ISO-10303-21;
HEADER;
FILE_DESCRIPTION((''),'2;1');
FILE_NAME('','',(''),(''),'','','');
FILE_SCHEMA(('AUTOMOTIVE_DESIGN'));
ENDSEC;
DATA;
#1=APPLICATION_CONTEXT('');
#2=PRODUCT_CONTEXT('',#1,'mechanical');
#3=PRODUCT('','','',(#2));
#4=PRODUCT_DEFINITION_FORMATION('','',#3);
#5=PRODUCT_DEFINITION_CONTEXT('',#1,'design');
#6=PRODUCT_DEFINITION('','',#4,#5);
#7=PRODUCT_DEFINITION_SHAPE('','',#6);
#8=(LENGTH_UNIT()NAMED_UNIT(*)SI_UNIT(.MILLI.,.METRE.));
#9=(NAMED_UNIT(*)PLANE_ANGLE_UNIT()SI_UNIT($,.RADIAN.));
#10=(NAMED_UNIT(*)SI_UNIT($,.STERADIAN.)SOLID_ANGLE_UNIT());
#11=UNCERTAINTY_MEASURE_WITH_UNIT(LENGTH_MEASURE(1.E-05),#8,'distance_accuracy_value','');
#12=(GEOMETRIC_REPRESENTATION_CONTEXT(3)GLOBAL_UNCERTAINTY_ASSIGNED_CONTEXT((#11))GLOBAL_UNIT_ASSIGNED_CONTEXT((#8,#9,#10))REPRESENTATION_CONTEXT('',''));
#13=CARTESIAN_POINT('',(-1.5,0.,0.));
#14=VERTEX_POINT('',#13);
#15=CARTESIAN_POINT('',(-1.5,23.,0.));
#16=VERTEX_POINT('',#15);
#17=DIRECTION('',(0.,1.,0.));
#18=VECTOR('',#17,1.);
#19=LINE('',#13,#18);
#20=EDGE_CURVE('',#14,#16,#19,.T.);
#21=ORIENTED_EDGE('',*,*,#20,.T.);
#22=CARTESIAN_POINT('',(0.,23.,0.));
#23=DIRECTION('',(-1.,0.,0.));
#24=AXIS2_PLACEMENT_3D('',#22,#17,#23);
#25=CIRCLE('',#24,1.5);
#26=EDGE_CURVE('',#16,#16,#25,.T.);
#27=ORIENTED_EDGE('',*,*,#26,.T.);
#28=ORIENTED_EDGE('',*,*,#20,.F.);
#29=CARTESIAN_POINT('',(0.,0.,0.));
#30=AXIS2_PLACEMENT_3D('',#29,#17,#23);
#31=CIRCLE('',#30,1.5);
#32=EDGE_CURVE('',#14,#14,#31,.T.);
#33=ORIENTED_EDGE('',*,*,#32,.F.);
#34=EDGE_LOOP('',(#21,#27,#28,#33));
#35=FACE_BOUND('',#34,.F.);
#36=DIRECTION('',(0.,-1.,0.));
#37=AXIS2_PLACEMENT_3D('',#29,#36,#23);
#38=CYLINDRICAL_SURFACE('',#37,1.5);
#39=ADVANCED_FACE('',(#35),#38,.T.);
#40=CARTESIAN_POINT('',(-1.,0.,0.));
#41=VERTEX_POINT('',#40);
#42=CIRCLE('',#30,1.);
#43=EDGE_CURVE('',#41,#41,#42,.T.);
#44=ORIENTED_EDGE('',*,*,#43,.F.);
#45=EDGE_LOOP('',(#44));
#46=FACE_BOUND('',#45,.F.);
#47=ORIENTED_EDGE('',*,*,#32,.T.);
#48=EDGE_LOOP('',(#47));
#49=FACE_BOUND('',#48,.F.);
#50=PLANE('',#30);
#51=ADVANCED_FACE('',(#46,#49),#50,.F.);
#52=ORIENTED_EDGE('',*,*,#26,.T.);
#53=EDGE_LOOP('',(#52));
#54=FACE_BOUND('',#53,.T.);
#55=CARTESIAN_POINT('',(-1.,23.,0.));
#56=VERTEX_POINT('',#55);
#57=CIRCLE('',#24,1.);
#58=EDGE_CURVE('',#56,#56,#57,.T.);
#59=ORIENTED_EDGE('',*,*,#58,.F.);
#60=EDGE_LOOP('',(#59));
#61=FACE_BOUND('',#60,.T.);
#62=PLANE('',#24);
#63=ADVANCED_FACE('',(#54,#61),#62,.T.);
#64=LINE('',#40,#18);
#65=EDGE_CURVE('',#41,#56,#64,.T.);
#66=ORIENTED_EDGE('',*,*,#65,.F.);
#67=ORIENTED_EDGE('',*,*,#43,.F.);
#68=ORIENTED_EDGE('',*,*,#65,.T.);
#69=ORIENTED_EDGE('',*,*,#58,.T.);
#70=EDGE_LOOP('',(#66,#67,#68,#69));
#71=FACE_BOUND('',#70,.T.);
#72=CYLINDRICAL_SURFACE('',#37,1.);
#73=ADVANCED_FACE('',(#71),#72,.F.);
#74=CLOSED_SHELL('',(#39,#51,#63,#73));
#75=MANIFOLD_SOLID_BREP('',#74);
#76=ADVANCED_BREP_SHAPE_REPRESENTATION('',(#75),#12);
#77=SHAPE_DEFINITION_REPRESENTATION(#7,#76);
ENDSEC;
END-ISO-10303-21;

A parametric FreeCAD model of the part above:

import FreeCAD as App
import Part
import Sketcher
from FreeCAD import Vector
Q = App.Units.Quantity

doc = App.newDocument("Part")
params = doc.addObject("Spreadsheet::Sheet", "Params")
for row, (alias, value) in enumerate([
    ("sketch1_diameter", "3 mm"),
    ("sketch1_diameter2", "2 mm"),
    ("pad1_length", "23 mm"),
], start=1):
    params.set(f"A{row}", alias)
    params.set(f"B{row}", "=" + value)
    params.setAlias(f"B{row}", alias)

body = doc.addObject("PartDesign::Body", "Body")

sketch1 = body.newObject("Sketcher::SketchObject", "Sketch")
sketch1.AttachmentSupport = (doc.getObject("XZ_Plane"), [""])
sketch1.MapMode = "FlatFace"
sketch1.addGeometry([
    Part.Circle(Vector(0, 0, 0), Vector(0, 0, 1), 1.5),
    Part.Circle(Vector(0, 0, 0), Vector(0, 0, 1), 1),
], False)
sketch1.addConstraint([
    Sketcher.Constraint("Coincident", 0, 3, -1, 1),
    Sketcher.Constraint("Coincident", 1, 3, -1, 1),
    Sketcher.Constraint("Diameter", 0, Q("3 mm")),
    Sketcher.Constraint("Diameter", 1, Q("2 mm")),
])
sketch1.setExpression("Constraints[2]", "Params.sketch1_diameter")
sketch1.setExpression("Constraints[3]", "Params.sketch1_diameter2")
pad1 = body.newObject("PartDesign::Pad", "Pad")
pad1.Profile = sketch1
pad1.setExpression("Length", "Params.pad1_length")
pad1.Reversed = True

doc.recompute()
